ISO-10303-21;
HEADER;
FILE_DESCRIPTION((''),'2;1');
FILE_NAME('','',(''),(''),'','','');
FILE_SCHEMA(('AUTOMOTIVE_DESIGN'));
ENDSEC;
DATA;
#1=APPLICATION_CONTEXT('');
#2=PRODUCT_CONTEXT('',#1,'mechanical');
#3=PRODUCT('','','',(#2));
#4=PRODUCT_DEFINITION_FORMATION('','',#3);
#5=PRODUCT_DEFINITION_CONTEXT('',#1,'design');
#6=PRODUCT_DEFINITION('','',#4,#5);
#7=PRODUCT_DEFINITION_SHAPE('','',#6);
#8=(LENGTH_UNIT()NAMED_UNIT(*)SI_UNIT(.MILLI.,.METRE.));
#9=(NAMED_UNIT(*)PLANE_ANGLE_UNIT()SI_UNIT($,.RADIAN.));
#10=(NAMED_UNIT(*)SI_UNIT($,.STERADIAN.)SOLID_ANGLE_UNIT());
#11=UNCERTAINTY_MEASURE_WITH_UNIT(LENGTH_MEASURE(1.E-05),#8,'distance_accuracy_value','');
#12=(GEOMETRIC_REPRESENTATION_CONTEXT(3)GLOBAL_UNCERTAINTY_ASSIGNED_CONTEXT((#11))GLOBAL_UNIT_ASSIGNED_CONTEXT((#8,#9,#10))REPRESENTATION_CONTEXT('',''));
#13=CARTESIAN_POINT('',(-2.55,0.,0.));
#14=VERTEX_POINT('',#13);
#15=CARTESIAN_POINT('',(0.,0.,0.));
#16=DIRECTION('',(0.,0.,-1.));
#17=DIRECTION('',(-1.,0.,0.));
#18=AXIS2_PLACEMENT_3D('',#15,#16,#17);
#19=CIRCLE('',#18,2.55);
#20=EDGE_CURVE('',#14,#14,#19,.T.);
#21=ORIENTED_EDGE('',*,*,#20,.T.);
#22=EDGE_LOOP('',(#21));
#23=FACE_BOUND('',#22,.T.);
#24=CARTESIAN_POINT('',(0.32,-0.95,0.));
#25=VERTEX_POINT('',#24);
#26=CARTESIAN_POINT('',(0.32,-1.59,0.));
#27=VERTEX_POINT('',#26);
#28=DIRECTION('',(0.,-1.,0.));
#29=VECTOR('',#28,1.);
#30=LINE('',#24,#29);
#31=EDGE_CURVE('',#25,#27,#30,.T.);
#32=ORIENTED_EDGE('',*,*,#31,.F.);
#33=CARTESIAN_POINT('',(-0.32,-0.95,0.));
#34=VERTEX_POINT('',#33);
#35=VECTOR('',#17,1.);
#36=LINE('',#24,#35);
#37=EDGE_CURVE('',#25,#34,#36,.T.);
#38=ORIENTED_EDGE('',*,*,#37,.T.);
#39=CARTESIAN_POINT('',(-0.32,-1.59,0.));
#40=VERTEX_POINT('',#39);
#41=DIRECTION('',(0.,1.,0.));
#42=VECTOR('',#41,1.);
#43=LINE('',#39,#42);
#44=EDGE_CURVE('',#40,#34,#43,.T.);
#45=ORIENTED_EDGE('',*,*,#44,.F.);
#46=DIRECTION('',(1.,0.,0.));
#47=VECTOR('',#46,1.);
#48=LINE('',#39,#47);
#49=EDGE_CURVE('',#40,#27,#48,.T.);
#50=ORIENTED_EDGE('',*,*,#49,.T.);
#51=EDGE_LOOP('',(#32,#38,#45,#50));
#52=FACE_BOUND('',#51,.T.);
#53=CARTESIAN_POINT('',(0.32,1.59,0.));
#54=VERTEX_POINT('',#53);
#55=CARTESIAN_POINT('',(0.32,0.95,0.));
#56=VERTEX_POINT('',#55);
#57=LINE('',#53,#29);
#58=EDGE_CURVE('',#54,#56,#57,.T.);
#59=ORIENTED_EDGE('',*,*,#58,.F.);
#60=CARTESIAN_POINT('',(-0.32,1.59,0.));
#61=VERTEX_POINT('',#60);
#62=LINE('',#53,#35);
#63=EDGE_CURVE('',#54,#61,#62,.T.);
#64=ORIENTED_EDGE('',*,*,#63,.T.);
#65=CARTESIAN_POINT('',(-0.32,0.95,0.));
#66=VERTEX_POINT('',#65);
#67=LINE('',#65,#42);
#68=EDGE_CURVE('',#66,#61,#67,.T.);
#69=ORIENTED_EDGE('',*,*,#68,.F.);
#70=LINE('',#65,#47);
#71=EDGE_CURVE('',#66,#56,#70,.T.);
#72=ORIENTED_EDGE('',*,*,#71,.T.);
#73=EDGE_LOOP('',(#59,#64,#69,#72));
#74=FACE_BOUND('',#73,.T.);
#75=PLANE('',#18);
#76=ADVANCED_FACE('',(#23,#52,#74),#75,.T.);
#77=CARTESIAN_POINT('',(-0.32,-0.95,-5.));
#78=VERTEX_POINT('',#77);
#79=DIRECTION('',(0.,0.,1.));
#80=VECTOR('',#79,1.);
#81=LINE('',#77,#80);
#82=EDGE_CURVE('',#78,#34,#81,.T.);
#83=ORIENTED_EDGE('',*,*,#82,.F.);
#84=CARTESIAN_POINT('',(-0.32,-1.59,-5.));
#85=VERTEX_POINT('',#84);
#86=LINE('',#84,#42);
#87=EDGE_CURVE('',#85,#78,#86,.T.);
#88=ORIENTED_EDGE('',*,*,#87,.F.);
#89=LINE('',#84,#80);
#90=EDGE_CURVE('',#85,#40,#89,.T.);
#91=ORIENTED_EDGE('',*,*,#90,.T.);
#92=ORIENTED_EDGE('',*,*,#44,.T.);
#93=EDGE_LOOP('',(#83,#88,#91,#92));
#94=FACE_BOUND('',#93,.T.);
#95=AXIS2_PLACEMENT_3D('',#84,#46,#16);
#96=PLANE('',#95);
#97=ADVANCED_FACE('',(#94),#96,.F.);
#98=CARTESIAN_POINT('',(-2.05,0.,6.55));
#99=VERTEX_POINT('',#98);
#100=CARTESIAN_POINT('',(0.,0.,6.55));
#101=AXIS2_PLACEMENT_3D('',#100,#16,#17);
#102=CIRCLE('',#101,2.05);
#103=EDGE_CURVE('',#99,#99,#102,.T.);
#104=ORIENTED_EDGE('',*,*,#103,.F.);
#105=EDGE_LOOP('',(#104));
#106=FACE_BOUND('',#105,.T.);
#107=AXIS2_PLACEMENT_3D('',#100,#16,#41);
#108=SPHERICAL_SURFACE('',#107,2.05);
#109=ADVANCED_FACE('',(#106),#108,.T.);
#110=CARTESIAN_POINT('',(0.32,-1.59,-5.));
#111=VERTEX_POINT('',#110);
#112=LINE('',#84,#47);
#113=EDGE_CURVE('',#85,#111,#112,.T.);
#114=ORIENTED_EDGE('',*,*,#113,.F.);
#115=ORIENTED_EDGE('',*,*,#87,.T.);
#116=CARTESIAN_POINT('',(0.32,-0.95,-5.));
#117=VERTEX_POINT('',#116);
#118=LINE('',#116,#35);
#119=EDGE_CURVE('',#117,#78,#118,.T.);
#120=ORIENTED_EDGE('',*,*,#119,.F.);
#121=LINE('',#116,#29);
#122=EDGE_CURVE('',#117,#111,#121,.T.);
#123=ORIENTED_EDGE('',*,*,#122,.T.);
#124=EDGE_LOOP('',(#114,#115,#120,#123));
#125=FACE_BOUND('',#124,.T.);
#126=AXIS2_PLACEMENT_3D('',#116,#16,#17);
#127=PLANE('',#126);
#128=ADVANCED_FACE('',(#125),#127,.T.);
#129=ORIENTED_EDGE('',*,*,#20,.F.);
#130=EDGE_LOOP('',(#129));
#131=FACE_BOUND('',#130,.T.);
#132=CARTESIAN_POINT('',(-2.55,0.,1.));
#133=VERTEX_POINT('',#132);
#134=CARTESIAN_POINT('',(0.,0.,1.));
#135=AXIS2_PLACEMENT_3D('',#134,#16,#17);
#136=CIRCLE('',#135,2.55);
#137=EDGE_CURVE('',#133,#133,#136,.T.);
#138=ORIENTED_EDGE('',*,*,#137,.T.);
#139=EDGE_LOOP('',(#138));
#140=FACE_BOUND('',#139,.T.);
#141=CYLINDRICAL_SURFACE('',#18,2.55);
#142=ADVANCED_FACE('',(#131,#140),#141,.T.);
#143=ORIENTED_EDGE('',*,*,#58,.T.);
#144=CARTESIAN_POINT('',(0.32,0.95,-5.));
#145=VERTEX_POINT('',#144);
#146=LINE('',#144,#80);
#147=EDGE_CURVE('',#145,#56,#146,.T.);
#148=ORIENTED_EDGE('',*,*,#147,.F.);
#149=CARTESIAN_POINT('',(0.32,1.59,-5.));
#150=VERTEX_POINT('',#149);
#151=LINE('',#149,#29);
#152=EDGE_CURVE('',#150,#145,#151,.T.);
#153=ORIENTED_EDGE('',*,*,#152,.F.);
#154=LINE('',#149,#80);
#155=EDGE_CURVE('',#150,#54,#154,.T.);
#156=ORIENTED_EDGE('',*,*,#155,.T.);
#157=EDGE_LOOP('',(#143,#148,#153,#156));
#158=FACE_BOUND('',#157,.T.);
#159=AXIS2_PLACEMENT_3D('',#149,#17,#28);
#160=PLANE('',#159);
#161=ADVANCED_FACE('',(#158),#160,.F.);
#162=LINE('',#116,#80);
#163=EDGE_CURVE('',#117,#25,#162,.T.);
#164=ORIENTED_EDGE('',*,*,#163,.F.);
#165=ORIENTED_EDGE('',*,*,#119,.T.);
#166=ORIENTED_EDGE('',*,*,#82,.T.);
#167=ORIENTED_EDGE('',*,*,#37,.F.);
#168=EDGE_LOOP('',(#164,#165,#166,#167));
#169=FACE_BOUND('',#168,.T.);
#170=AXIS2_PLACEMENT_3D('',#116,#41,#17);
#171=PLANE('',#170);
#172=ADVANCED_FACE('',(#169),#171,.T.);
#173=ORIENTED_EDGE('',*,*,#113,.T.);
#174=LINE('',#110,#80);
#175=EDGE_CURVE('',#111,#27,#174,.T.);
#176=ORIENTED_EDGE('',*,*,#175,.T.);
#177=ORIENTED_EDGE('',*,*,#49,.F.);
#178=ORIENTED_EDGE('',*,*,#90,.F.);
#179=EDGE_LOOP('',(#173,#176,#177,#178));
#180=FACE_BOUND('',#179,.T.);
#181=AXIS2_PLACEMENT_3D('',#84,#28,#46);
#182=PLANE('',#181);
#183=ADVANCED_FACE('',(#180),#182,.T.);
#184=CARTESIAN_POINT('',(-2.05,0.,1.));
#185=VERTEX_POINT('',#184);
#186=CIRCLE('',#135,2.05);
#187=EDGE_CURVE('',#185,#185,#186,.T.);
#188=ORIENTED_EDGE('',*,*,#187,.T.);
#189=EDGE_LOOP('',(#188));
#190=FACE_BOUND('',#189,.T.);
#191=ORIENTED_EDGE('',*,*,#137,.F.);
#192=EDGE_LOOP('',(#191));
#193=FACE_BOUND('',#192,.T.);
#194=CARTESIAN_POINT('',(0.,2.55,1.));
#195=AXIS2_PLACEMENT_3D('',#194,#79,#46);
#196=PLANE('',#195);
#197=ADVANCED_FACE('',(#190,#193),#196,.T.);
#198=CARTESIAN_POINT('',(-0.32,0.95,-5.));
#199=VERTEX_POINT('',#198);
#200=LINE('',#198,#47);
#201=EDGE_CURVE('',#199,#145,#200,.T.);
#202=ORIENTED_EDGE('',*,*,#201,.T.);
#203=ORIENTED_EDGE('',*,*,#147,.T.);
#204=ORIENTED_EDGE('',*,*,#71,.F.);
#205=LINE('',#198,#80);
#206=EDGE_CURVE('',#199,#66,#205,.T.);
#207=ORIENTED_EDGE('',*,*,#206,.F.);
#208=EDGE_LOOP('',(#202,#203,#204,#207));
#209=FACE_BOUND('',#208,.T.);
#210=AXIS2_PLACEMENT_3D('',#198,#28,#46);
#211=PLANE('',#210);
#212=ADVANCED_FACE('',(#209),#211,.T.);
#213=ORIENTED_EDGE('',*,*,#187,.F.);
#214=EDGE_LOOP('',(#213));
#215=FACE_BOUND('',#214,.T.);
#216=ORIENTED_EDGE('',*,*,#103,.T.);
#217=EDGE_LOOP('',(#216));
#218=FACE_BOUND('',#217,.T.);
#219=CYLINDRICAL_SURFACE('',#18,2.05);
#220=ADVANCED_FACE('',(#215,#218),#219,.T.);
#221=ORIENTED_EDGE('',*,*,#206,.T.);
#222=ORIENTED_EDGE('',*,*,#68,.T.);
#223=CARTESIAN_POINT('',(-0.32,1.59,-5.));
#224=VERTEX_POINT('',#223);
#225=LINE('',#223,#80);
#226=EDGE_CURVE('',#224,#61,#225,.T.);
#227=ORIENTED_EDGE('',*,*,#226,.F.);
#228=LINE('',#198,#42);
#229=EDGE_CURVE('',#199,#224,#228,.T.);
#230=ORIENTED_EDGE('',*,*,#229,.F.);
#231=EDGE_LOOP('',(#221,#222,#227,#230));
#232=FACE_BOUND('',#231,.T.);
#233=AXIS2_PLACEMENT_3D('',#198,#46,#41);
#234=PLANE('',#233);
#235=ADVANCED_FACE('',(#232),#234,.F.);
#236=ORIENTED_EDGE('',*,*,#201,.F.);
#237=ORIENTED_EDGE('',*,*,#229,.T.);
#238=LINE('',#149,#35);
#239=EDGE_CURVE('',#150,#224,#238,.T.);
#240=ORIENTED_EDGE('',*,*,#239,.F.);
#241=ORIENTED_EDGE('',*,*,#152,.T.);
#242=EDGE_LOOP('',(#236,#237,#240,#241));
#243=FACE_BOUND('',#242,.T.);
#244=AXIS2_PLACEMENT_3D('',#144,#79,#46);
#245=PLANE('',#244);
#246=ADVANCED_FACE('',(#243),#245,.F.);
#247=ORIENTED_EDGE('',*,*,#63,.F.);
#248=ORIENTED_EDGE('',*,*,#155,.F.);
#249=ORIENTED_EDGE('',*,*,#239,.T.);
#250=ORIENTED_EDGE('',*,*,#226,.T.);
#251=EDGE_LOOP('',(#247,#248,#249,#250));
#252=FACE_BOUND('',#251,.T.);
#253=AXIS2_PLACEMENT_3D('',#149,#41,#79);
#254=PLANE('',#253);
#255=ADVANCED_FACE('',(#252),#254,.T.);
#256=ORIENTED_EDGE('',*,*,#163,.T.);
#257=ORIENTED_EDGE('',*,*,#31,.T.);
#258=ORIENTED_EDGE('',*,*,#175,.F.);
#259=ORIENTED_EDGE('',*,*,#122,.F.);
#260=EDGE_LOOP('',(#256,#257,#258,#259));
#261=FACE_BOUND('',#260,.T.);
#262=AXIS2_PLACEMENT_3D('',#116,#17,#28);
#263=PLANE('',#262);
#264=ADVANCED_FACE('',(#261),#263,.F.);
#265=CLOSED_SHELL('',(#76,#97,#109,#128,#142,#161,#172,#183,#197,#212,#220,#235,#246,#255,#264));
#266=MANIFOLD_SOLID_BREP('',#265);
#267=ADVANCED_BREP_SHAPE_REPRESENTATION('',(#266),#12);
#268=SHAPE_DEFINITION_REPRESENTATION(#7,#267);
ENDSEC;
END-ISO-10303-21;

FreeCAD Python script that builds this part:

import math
import FreeCAD as App
import Part
import Sketcher

doc = App.newDocument("Part")
body = doc.addObject("PartDesign::Body", "Body")

sketch1 = body.newObject("Sketcher::SketchObject", "Sketch")
sketch1.AttachmentSupport = (doc.getObject("YZ_Plane"), [""])
sketch1.MapMode = "FlatFace"
sketch1.addGeometry([
    Part.LineSegment(App.Vector(0, 0, 0), App.Vector(2.5, 0, 0)),
    Part.LineSegment(App.Vector(2.5, 0, 0), App.Vector(2.5, 1, 0)),
    Part.LineSegment(App.Vector(2.5, 1, 0), App.Vector(2, 1, 0)),
    Part.LineSegment(App.Vector(2, 1, 0), App.Vector(2, 6.5, 0)),
    Part.ArcOfCircle(Part.Circle(App.Vector(0, 6.5, 0), App.Vector(0, 0, 1), 2.1), math.radians(0), math.radians(90)),
    Part.LineSegment(App.Vector(0, 8.6, 0), App.Vector(0, 0, 0)),
], False)
sketch1.addConstraint([
    Sketcher.Constraint("Coincident", 0, 2, 1, 1),
    Sketcher.Constraint("Coincident", 1, 2, 2, 1),
    Sketcher.Constraint("Coincident", 2, 2, 3, 1),
    Sketcher.Constraint("Tangent", 3, 2, 4, 1),
    Sketcher.Constraint("Coincident", 4, 2, 5, 1),
    Sketcher.Constraint("Coincident", 5, 2, 0, 1),
    Sketcher.Constraint("Horizontal", 0),
    Sketcher.Constraint("Vertical", 1),
    Sketcher.Constraint("Horizontal", 2),
    Sketcher.Constraint("Vertical", 3),
    Sketcher.Constraint("Vertical", 5),
    Sketcher.Constraint("Coincident", 5, 2, -1, 1),
    Sketcher.Constraint("PointOnObject", 4, 3, -2),
    Sketcher.Constraint("DistanceY", 1, 1, 1, 2, 1.0),
    Sketcher.Constraint("Radius", 4, 2.05),
    Sketcher.Constraint("DistanceX", 2, 2, 2, 1, 0.5),
    Sketcher.Constraint("DistanceY", 5, 2, 5, 1, 8.6),
])
revolution = body.newObject("PartDesign::Revolution", "Revolution")
revolution.Profile = sketch1
revolution.ReferenceAxis = (sketch1, ["V_Axis"])
revolution.Angle = 360

sketch2 = body.newObject("Sketcher::SketchObject", "Sketch001")
sketch2.AttachmentSupport = (doc.getObject("XY_Plane"), [""])
sketch2.MapMode = "FlatFace"
sketch2.addGeometry([
    Part.LineSegment(App.Vector(0.3, 1.6, 0), App.Vector(0.3, 0.9, 0)),
    Part.LineSegment(App.Vector(0.3, 0.9, 0), App.Vector(-0.3, 0.9, 0)),
    Part.LineSegment(App.Vector(-0.3, 0.9, 0), App.Vector(-0.3, 1.6, 0)),
    Part.LineSegment(App.Vector(-0.3, 1.6, 0), App.Vector(0.3, 1.6, 0)),
    Part.LineSegment(App.Vector(0.3, -0.9, 0), App.Vector(0.3, -1.6, 0)),
    Part.LineSegment(App.Vector(0.3, -1.6, 0), App.Vector(-0.3, -1.6, 0)),
    Part.LineSegment(App.Vector(-0.3, -1.6, 0), App.Vector(-0.3, -0.9, 0)),
    Part.LineSegment(App.Vector(-0.3, -0.9, 0), App.Vector(0.3, -0.9, 0)),
], False)
sketch2.addConstraint([
    Sketcher.Constraint("Coincident", 0, 2, 1, 1),
    Sketcher.Constraint("Coincident", 1, 2, 2, 1),
    Sketcher.Constraint("Coincident", 2, 2, 3, 1),
    Sketcher.Constraint("Coincident", 3, 2, 0, 1),
    Sketcher.Constraint("Coincident", 4, 2, 5, 1),
    Sketcher.Constraint("Coincident", 5, 2, 6, 1),
    Sketcher.Constraint("Coincident", 6, 2, 7, 1),
    Sketcher.Constraint("Coincident", 7, 2, 4, 1),
    Sketcher.Constraint("Vertical", 0),
    Sketcher.Constraint("Horizontal", 1),
    Sketcher.Constraint("Vertical", 2),
    Sketcher.Constraint("Horizontal", 3),
    Sketcher.Constraint("Vertical", 4),
    Sketcher.Constraint("Horizontal", 5),
    Sketcher.Constraint("Vertical", 6),
    Sketcher.Constraint("Horizontal", 7),
    Sketcher.Constraint("Symmetric", 2, 2, 4, 2, -1, 1),
    Sketcher.Constraint("Symmetric", 0, 2, 6, 2, -1, 1),
    Sketcher.Constraint("Vertical", 3, 2, 4, 2),
    Sketcher.Constraint("Equal", 7, 0),
    Sketcher.Constraint("DistanceX", 1, 2, 1, 1, 0.64),
    Sketcher.Constraint("DistanceY", 6, 2, 1, 2, 1.9),
])
pad1 = body.newObject("PartDesign::Pad", "Pad")
pad1.Profile = sketch2
pad1.Length = 5
pad1.Reversed = True

doc.recompute()
